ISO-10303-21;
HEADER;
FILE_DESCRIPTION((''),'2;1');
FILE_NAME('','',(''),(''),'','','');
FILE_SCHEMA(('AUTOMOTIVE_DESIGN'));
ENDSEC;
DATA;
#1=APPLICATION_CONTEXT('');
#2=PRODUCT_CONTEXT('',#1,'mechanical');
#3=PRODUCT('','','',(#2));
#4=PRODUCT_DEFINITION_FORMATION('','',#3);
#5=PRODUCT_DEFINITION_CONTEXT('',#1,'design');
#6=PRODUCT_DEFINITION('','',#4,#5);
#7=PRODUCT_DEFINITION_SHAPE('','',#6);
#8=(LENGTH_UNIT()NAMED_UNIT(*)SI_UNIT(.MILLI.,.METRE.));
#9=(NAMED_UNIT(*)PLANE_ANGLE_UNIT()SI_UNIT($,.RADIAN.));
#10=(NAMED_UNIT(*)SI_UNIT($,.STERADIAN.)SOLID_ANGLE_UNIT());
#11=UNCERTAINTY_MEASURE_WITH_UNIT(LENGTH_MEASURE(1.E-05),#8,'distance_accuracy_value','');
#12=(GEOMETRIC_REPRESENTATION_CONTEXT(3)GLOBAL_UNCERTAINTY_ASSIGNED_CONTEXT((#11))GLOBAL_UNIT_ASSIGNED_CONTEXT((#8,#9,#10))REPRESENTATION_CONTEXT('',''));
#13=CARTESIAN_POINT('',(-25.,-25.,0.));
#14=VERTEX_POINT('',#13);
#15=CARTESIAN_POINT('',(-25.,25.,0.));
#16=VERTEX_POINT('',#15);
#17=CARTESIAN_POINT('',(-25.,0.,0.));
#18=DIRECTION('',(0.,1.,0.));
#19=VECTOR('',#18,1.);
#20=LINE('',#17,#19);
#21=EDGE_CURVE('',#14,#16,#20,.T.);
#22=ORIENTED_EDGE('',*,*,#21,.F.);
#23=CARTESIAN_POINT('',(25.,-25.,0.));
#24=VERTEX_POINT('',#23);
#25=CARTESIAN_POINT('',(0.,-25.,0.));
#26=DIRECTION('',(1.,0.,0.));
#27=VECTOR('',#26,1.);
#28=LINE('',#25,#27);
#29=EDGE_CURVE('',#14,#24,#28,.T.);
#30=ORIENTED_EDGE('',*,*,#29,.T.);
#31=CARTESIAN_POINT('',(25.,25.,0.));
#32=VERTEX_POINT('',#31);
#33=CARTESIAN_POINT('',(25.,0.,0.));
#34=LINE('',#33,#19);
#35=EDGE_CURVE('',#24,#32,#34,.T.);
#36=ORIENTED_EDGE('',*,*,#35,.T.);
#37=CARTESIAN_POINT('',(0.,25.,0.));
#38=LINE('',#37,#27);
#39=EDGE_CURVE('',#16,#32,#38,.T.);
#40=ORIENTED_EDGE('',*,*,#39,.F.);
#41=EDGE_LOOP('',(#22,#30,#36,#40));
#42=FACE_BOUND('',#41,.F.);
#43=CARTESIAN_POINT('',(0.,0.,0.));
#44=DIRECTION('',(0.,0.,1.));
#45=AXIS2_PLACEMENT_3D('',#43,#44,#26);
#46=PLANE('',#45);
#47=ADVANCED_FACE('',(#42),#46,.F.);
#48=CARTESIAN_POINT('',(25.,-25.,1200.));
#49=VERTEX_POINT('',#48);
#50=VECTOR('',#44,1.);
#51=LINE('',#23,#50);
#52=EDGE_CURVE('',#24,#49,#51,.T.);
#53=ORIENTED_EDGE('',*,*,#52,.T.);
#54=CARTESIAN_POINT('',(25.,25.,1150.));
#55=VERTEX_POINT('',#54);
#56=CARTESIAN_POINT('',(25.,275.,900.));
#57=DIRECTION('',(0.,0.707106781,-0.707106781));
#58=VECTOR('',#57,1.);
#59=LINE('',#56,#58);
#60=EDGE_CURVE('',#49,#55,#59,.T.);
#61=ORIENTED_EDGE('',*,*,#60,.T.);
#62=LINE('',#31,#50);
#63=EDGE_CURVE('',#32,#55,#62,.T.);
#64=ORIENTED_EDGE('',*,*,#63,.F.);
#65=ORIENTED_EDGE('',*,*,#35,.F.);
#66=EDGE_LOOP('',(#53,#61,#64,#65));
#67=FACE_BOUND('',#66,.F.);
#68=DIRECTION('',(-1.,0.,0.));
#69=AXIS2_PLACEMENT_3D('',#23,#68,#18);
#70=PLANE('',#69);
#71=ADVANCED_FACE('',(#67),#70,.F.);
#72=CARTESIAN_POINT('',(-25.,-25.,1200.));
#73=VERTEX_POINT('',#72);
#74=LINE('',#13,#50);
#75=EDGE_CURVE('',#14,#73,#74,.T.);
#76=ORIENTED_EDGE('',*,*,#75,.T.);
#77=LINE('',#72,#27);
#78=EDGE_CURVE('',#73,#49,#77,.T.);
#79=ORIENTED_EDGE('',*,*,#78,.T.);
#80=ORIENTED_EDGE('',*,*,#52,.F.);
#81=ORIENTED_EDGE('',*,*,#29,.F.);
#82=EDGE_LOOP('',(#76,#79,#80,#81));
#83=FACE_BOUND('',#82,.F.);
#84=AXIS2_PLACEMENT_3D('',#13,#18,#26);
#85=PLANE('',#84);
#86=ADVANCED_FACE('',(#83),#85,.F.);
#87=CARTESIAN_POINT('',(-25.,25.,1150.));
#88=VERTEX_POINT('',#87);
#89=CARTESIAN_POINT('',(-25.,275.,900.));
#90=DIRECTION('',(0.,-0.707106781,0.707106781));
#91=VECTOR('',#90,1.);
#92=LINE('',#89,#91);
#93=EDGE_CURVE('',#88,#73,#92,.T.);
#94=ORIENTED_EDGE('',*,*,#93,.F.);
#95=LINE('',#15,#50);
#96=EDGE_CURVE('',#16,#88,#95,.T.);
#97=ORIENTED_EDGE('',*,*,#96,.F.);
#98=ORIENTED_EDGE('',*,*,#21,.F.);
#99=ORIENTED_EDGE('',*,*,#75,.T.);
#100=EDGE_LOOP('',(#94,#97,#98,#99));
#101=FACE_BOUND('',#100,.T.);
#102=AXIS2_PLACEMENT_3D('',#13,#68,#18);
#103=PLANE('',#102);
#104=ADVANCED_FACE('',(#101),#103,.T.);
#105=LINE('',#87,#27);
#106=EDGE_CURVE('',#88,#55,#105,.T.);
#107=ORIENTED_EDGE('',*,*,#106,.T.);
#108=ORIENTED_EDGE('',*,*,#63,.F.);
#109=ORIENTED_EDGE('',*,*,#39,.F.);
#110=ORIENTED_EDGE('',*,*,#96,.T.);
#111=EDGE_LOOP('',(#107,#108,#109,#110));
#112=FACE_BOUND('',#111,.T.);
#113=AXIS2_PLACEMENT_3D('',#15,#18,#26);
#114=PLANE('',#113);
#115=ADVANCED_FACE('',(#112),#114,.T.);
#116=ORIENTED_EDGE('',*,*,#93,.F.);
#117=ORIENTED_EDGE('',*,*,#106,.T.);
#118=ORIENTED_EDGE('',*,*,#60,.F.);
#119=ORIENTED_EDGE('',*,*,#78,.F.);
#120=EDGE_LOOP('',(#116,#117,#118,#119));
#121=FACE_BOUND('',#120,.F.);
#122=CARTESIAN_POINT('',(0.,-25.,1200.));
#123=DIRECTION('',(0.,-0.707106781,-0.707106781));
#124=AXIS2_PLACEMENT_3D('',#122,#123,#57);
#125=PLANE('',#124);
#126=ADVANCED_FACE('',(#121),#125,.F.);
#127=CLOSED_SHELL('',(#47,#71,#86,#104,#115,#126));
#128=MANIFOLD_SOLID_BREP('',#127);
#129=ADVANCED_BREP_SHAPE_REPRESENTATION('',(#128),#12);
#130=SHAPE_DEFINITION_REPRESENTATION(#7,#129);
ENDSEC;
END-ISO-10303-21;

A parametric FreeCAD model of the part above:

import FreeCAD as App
import Part
import Sketcher

doc = App.newDocument("Part")
params = doc.addObject("Spreadsheet::Sheet", "Params")
for row, (alias, value) in enumerate([
    ("sketch1_width", "50 mm"),
    ("pad1_length", "1200 mm"),
], start=1):
    params.set(f"A{row}", alias)
    params.set(f"B{row}", "=" + value)
    params.setAlias(f"B{row}", alias)

body = doc.addObject("PartDesign::Body", "Body")

# Sketch on XY plane
sketch1 = body.newObject("Sketcher::SketchObject", "Sketch")
sketch1.AttachmentSupport = (doc.getObject("XY_Plane"), [""])
sketch1.MapMode = "FlatFace"
sketch1.addGeometry(Part.LineSegment(App.Vector(-25, 25, 0), App.Vector(-25, -25, 0)), False)
sketch1.addGeometry(Part.LineSegment(App.Vector(-25, -25, 0), App.Vector(25, -25, 0)), False)
sketch1.addGeometry(Part.LineSegment(App.Vector(25, -25, 0), App.Vector(25, 25, 0)), False)
sketch1.addGeometry(Part.LineSegment(App.Vector(25, 25, 0), App.Vector(-25, 25, 0)), False)
sketch1.addConstraint(Sketcher.Constraint("Coincident", 0, 2, 1, 1))
sketch1.addConstraint(Sketcher.Constraint("Coincident", 1, 2, 2, 1))
sketch1.addConstraint(Sketcher.Constraint("Coincident", 2, 2, 3, 1))
sketch1.addConstraint(Sketcher.Constraint("Coincident", 3, 2, 0, 1))
sketch1.addConstraint(Sketcher.Constraint("Vertical", 0))
sketch1.addConstraint(Sketcher.Constraint("Horizontal", 1))
sketch1.addConstraint(Sketcher.Constraint("Vertical", 2))
sketch1.addConstraint(Sketcher.Constraint("Horizontal", 3))
sketch1.addConstraint(Sketcher.Constraint("Symmetric", 0, 2, 2, 2, -1, 1))
sketch1.addConstraint(Sketcher.Constraint("Equal", 3, 0))
sketch1.addConstraint(Sketcher.Constraint("DistanceX", 1, 1, 1, 2, 50.0))
sketch1.setExpression("Constraints[10]", "Params.sketch1_width")
pad1 = body.newObject("PartDesign::Pad", "Pad")
pad1.Profile = sketch1
pad1.setExpression("Length", "Params.pad1_length")

# Sketch on YZ plane
sketch2 = body.newObject("Sketcher::SketchObject", "Sketch001")
sketch2.AttachmentSupport = (doc.getObject("YZ_Plane"), [""])
sketch2.MapMode = "FlatFace"
sketch2.addGeometry(Part.LineSegment(App.Vector(135.305869, 1200, 0), App.Vector(-25, 1200, 0)), False)
sketch2.addGeometry(Part.LineSegment(App.Vector(-25, 1200, 0), App.Vector(135.305869, 1039.694131, 0)), False)
sketch2.addGeometry(Part.LineSegment(App.Vector(135.305869, 1039.694131, 0), App.Vector(135.305869, 1200, 0)), False)
sketch2.addConstraint(Sketcher.Constraint("Coincident", 0, 2, 1, 1))
sketch2.addConstraint(Sketcher.Constraint("Coincident", 1, 2, 2, 1))
sketch2.addConstraint(Sketcher.Constraint("Coincident", 2, 2, 0, 1))
sketch2.addConstraint(Sketcher.Constraint("Horizontal", 0))
sketch2.addConstraint(Sketcher.Constraint("Vertical", 2))
sketch2.addConstraint(Sketcher.Constraint("Equal", 0, 2))
sketch2.addConstraint(Sketcher.Constraint("DistanceX", 0, 2, -1, 1, 25.0))
sketch2.addConstraint(Sketcher.Constraint("DistanceY", -1, 1, 0, 2, 1200.0))
sketch2.addConstraint(Sketcher.Constraint("DistanceX", 0, 2, 0, 1, 160.305869))
pocket1 = body.newObject("PartDesign::Pocket", "Pocket")
pocket1.Profile = sketch2
pocket1.Type = "ThroughAll"
pocket1.Midplane = True

doc.recompute()
